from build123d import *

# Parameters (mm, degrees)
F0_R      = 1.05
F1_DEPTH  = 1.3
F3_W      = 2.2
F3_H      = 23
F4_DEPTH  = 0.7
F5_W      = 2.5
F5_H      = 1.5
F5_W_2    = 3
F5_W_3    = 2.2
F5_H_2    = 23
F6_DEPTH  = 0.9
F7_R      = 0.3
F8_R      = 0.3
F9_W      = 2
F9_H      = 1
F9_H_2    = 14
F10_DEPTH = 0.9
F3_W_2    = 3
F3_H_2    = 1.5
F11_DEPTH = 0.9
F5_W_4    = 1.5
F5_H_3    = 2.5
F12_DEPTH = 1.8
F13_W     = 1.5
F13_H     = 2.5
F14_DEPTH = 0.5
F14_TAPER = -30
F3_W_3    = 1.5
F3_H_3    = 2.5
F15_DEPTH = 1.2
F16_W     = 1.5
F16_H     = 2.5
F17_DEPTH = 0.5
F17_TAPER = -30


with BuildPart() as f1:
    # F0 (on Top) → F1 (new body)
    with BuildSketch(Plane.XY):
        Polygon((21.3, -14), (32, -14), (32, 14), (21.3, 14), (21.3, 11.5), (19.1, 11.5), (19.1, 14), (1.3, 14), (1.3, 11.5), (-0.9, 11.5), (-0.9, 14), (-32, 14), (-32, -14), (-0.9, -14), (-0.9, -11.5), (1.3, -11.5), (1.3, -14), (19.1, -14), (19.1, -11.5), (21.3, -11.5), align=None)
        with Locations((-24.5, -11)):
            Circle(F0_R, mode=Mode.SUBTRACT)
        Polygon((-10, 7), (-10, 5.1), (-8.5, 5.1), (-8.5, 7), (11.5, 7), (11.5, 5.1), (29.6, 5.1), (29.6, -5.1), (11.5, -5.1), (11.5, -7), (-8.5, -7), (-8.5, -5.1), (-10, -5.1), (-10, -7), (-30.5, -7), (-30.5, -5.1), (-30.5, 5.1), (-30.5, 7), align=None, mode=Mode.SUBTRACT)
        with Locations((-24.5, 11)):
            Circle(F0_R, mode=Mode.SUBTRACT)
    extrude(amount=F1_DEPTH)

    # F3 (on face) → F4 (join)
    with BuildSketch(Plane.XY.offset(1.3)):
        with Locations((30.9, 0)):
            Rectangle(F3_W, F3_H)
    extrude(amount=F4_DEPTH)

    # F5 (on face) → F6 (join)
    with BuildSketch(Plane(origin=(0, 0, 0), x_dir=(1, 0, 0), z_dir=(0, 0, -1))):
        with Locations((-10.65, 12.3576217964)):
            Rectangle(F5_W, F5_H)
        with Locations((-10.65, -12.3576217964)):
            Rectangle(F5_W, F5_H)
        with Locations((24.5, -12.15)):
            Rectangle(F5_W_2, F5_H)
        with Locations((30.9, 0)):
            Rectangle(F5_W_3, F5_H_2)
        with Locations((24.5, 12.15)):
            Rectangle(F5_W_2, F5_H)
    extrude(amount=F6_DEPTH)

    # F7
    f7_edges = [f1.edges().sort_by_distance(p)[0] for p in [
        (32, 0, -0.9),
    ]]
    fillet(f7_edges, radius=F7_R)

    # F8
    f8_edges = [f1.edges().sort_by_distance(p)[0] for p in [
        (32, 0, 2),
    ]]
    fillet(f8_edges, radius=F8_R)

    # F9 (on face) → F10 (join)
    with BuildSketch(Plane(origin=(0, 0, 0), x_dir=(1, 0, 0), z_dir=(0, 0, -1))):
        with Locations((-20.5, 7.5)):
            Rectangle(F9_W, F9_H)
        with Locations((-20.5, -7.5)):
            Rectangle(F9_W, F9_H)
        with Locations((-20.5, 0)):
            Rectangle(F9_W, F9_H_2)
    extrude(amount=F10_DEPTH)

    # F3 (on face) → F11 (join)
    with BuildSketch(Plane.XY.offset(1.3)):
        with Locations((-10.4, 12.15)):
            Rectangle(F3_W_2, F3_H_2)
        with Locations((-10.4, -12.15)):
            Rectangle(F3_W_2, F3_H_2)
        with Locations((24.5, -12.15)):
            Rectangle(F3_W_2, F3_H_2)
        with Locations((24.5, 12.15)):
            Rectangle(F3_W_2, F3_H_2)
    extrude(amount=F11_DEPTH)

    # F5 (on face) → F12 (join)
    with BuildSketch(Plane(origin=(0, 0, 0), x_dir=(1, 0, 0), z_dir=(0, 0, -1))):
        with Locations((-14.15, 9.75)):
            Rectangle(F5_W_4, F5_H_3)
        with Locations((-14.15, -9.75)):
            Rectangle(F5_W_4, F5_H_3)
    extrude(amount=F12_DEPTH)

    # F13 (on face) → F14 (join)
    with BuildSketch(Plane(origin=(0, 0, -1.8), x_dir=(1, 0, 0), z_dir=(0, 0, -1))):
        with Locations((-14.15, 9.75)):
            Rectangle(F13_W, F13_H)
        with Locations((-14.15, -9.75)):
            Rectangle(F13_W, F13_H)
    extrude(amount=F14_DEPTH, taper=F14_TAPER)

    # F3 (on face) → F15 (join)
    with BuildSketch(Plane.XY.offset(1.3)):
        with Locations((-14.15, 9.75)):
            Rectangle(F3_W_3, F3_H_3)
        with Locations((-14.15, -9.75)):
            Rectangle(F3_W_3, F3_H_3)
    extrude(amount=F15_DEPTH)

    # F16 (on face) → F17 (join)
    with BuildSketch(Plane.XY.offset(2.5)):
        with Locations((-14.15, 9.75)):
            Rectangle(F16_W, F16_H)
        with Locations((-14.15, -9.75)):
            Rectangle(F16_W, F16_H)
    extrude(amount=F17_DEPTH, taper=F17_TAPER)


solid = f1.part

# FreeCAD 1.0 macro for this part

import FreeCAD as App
import Part
import Sketcher
from FreeCAD import Vector
Q = App.Units.Quantity


def edges_at(feature, points):
    """Names of the edges that pass closest to the given points."""
    edges = feature.Shape.Edges
    near = lambda p: min(range(len(edges)), key=lambda i: edges[i].distToShape(Part.Vertex(*p))[0])
    return sorted({f"Edge{near(p) + 1}" for p in points})

doc = App.newDocument("Part")
params = doc.addObject("Spreadsheet::Sheet", "Params")
for row, (alias, value) in enumerate([
    ("sketch1_diameter", "2.1 mm"),
    ("sketch1_width", "20 mm"),
    ("sketch1_height", "28 mm"),
    ("sketch1_height2", "14 mm"),
    ("sketch1_width2", "10.7 mm"),
    ("pad1_length", "1.3 mm"),
    ("sketch2_height", "23 mm"),
    ("sketch2_width", "2.2 mm"),
    ("pad2_length", "0.7 mm"),
    ("sketch3_width", "3 mm"),
    ("sketch3_height", "23 mm"),
    ("sketch3_width2", "2.5 mm"),
    ("sketch3_width3", "2.2 mm"),
    ("sketch3_height2", "1.5 mm"),
    ("pad3_length", "0.9 mm"),
    ("fillet_radius", "0.3 mm"),
    ("fillet2_radius", "0.3 mm"),
    ("sketch4_width", "2 mm"),
    ("sketch4_height", "16 mm"),
    ("pad4_length", "0.9 mm"),
    ("sketch5_width", "3 mm"),
    ("sketch5_height", "1.5 mm"),
    ("pad5_length", "0.9 mm"),
    ("sketch6_width", "1.5 mm"),
    ("sketch6_height", "2.5 mm"),
    ("pad6_length", "1.8 mm"),
    ("sketch7_width", "1.5 mm"),
    ("sketch7_height", "2.5 mm"),
    ("pad7_length", "0.5 mm"),
    ("pad7_taper", "30 deg"),
    ("sketch8_width", "1.5 mm"),
    ("sketch8_height", "2.5 mm"),
    ("pad8_length", "1.2 mm"),
    ("sketch9_width", "1.5 mm"),
    ("sketch9_height", "2.5 mm"),
    ("pad9_length", "0.5 mm"),
    ("pad9_taper", "30 deg"),
], start=1):
    params.set(f"A{row}", alias)
    params.set(f"B{row}", "=" + value)
    params.setAlias(f"B{row}", alias)

body = doc.addObject("PartDesign::Body", "Body")

sketch1 = body.newObject("Sketcher::SketchObject", "Sketch")
sketch1.AttachmentSupport = (doc.getObject("XY_Plane"), [""])
sketch1.MapMode = "FlatFace"
sketch1.addGeometry([
    Part.LineSegment(Vector(21.3, -14, 0), Vector(32, -14, 0)),
    Part.LineSegment(Vector(32, -14, 0), Vector(32, 14, 0)),
    Part.LineSegment(Vector(32, 14, 0), Vector(21.3, 14, 0)),
    Part.LineSegment(Vector(21.3, 14, 0), Vector(21.3, 11.5, 0)),
    Part.LineSegment(Vector(21.3, 11.5, 0), Vector(19.1, 11.5, 0)),
    Part.LineSegment(Vector(19.1, 11.5, 0), Vector(19.1, 14, 0)),
    Part.LineSegment(Vector(19.1, 14, 0), Vector(1.3, 14, 0)),
    Part.LineSegment(Vector(1.3, 14, 0), Vector(1.3, 11.5, 0)),
    Part.LineSegment(Vector(1.3, 11.5, 0), Vector(-0.9, 11.5, 0)),
    Part.LineSegment(Vector(-0.9, 11.5, 0), Vector(-0.9, 14, 0)),
    Part.LineSegment(Vector(-0.9, 14, 0), Vector(-32, 14, 0)),
    Part.LineSegment(Vector(-32, 14, 0), Vector(-32, -14, 0)),
    Part.LineSegment(Vector(-32, -14, 0), Vector(-0.9, -14, 0)),
    Part.LineSegment(Vector(-0.9, -14, 0), Vector(-0.9, -11.5, 0)),
    Part.LineSegment(Vector(-0.9, -11.5, 0), Vector(1.3, -11.5, 0)),
    Part.LineSegment(Vector(1.3, -11.5, 0), Vector(1.3, -14, 0)),
    Part.LineSegment(Vector(1.3, -14, 0), Vector(19.1, -14, 0)),
    Part.LineSegment(Vector(19.1, -14, 0), Vector(19.1, -11.5, 0)),
    Part.LineSegment(Vector(19.1, -11.5, 0), Vector(21.3, -11.5, 0)),
    Part.LineSegment(Vector(21.3, -11.5, 0), Vector(21.3, -14, 0)),
    Part.Circle(Vector(-24.5, -11, 0), Vector(0, 0, 1), 1.1),
    Part.Circle(Vector(-24.5, 11, 0), Vector(0, 0, 1), 1.1),
    Part.LineSegment(Vector(-30.5, 7, 0), Vector(-10, 7, 0)),
    Part.LineSegment(Vector(-10, 7, 0), Vector(-10, 5.1, 0)),
    Part.LineSegment(Vector(-10, 5.1, 0), Vector(-8.5, 5.1, 0)),
    Part.LineSegment(Vector(-8.5, 5.1, 0), Vector(-8.5, 7, 0)),
    Part.LineSegment(Vector(-8.5, 7, 0), Vector(11.5, 7, 0)),
    Part.LineSegment(Vector(11.5, 7, 0), Vector(11.5, 5.1, 0)),
    Part.LineSegment(Vector(11.5, 5.1, 0), Vector(29.6, 5.1, 0)),
    Part.LineSegment(Vector(29.6, 5.1, 0), Vector(29.6, -5.1, 0)),
    Part.LineSegment(Vector(29.6, -5.1, 0), Vector(11.5, -5.1, 0)),
    Part.LineSegment(Vector(11.5, -5.1, 0), Vector(11.5, -7, 0)),
    Part.LineSegment(Vector(11.5, -7, 0), Vector(-8.5, -7, 0)),
    Part.LineSegment(Vector(-8.5, -7, 0), Vector(-8.5, -5.1, 0)),
    Part.LineSegment(Vector(-8.5, -5.1, 0), Vector(-10, -5.1, 0)),
    Part.LineSegment(Vector(-10, -5.1, 0), Vector(-10, -7, 0)),
    Part.LineSegment(Vector(-10, -7, 0), Vector(-30.5, -7, 0)),
    Part.LineSegment(Vector(-30.5, -7, 0), Vector(-30.5, 7, 0)),
], False)
sketch1.addConstraint([
    Sketcher.Constraint("Coincident", 0, 2, 1, 1),
    Sketcher.Constraint("Coincident", 1, 2, 2, 1),
    Sketcher.Constraint("Coincident", 2, 2, 3, 1),
    Sketcher.Constraint("Coincident", 3, 2, 4, 1),
    Sketcher.Constraint("Coincident", 4, 2, 5, 1),
    Sketcher.Constraint("Coincident", 5, 2, 6, 1),
    Sketcher.Constraint("Coincident", 6, 2, 7, 1),
    Sketcher.Constraint("Coincident", 7, 2, 8, 1),
    Sketcher.Constraint("Coincident", 8, 2, 9, 1),
    Sketcher.Constraint("Coincident", 9, 2, 10, 1),
    Sketcher.Constraint("Coincident", 10, 2, 11, 1),
    Sketcher.Constraint("Coincident", 11, 2, 12, 1),
    Sketcher.Constraint("Coincident", 12, 2, 13, 1),
    Sketcher.Constraint("Coincident", 13, 2, 14, 1),
    Sketcher.Constraint("Coincident", 14, 2, 15, 1),
    Sketcher.Constraint("Coincident", 15, 2, 16, 1),
    Sketcher.Constraint("Coincident", 16, 2, 17, 1),
    Sketcher.Constraint("Coincident", 17, 2, 18, 1),
    Sketcher.Constraint("Coincident", 18, 2, 19, 1),
    Sketcher.Constraint("Coincident", 19, 2, 0, 1),
    Sketcher.Constraint("Coincident", 22, 2, 23, 1),
    Sketcher.Constraint("Coincident", 23, 2, 24, 1),
    Sketcher.Constraint("Coincident", 24, 2, 25, 1),
    Sketcher.Constraint("Coincident", 25, 2, 26, 1),
    Sketcher.Constraint("Coincident", 26, 2, 27, 1),
    Sketcher.Constraint("Coincident", 27, 2, 28, 1),
    Sketcher.Constraint("Coincident", 28, 2, 29, 1),
    Sketcher.Constraint("Coincident", 29, 2, 30, 1),
    Sketcher.Constraint("Coincident", 30, 2, 31, 1),
    Sketcher.Constraint("Coincident", 31, 2, 32, 1),
    Sketcher.Constraint("Coincident", 32, 2, 33, 1),
    Sketcher.Constraint("Coincident", 33, 2, 34, 1),
    Sketcher.Constraint("Coincident", 34, 2, 35, 1),
    Sketcher.Constraint("Coincident", 35, 2, 36, 1),
    Sketcher.Constraint("Coincident", 36, 2, 37, 1),
    Sketcher.Constraint("Coincident", 37, 2, 22, 1),
    Sketcher.Constraint("Horizontal", 0),
    Sketcher.Constraint("Vertical", 1),
    Sketcher.Constraint("Horizontal", 2),
    Sketcher.Constraint("Vertical", 3),
    Sketcher.Constraint("Horizontal", 4),
    Sketcher.Constraint("Vertical", 5),
    Sketcher.Constraint("Horizontal", 6),
    Sketcher.Constraint("Vertical", 7),
    Sketcher.Constraint("Horizontal", 8),
    Sketcher.Constraint("Vertical", 9),
    Sketcher.Constraint("Horizontal", 10),
    Sketcher.Constraint("Vertical", 11),
    Sketcher.Constraint("Horizontal", 12),
    Sketcher.Constraint("Vertical", 13),
    Sketcher.Constraint("Horizontal", 14),
    Sketcher.Constraint("Vertical", 15),
    Sketcher.Constraint("Horizontal", 16),
    Sketcher.Constraint("Vertical", 17),
    Sketcher.Constraint("Horizontal", 18),
    Sketcher.Constraint("Vertical", 19),
    Sketcher.Constraint("Horizontal", 22),
    Sketcher.Constraint("Vertical", 23),
    Sketcher.Constraint("Horizontal", 24),
    Sketcher.Constraint("Vertical", 25),
    Sketcher.Constraint("Horizontal", 26),
    Sketcher.Constraint("Vertical", 27),
    Sketcher.Constraint("Horizontal", 28),
    Sketcher.Constraint("Vertical", 29),
    Sketcher.Constraint("Horizontal", 30),
    Sketcher.Constraint("Vertical", 31),
    Sketcher.Constraint("Horizontal", 32),
    Sketcher.Constraint("Vertical", 33),
    Sketcher.Constraint("Horizontal", 34),
    Sketcher.Constraint("Vertical", 35),
    Sketcher.Constraint("Horizontal", 36),
    Sketcher.Constraint("Vertical", 37),
    Sketcher.Constraint("Equal", 20, 21),
    Sketcher.Constraint("Symmetric", 0, 2, 10, 2, -1, 1),
    Sketcher.Constraint("Symmetric", 20, 3, 21, 3, -1),
    Sketcher.Constraint("Symmetric", 9, 2, 12, 2, -1),
    Sketcher.Constraint("Symmetric", 7, 2, 14, 2, -1),
    Sketcher.Constraint("Symmetric", 5, 2, 16, 2, -1),
    Sketcher.Constraint("Symmetric", 3, 2, 18, 2, -1),
    Sketcher.Constraint("Symmetric", 27, 2, 30, 2, -1),
    Sketcher.Constraint("Symmetric", 25, 2, 32, 2, -1),
    Sketcher.Constraint("Symmetric", 23, 2, 34, 2, -1),
    Sketcher.Constraint("Horizontal", 2, 2, 5, 2),
    Sketcher.Constraint("Horizontal", 4, 2, 7, 2),
    Sketcher.Constraint("Horizontal", 6, 2, 9, 2),
    Sketcher.Constraint("Horizontal", 22, 2, 25, 2),
    Sketcher.Constraint("Horizontal", 24, 2, 27, 2),
    Sketcher.Constraint("Horizontal", 32, 2, 35, 2),
    Sketcher.Constraint("Equal", 4, 8),
    Sketcher.Constraint("Diameter", 20, Q("2.1 mm")),
    Sketcher.Constraint("DistanceX", 26, 1, 26, 2, Q("20 mm")),
    Sketcher.Constraint("DistanceY", 1, 1, 1, 2, Q("28 mm")),
    Sketcher.Constraint("DistanceY", 37, 1, 37, 2, Q("14 mm")),
    Sketcher.Constraint("DistanceX", 0, 1, 0, 2, Q("10.7 mm")),
    Sketcher.Constraint("DistanceX", 4, 2, 4, 1, Q("2.2 mm")),
    Sketcher.Constraint("DistanceX", 6, 2, 6, 1, Q("17.8 mm")),
    Sketcher.Constraint("DistanceX", 10, 2, 10, 1, Q("31.1 mm")),
    Sketcher.Constraint("DistanceX", 22, 1, 22, 2, Q("20.5 mm")),
    Sketcher.Constraint("DistanceX", 24, 1, 24, 2, Q("1.5 mm")),
    Sketcher.Constraint("DistanceX", 28, 1, 28, 2, Q("18.1 mm")),
    Sketcher.Constraint("DistanceY", 3, 2, 3, 1, Q("2.5 mm")),
    Sketcher.Constraint("DistanceY", 23, 2, 23, 1, Q("1.9 mm")),
    Sketcher.Constraint("DistanceY", 20, 3, -1, 1, Q("11 mm")),
    Sketcher.Constraint("DistanceX", 22, 2, -1, 1, Q("10 mm")),
    Sketcher.Constraint("DistanceX", 36, 2, 20, 3, Q("6 mm")),
])
sketch1.setExpression("Constraints[89]", "Params.sketch1_diameter")
sketch1.setExpression("Constraints[90]", "Params.sketch1_width")
sketch1.setExpression("Constraints[91]", "Params.sketch1_height")
sketch1.setExpression("Constraints[92]", "Params.sketch1_height2")
sketch1.setExpression("Constraints[93]", "Params.sketch1_width2")
pad1 = body.newObject("PartDesign::Pad", "Pad")
pad1.Profile = sketch1
pad1.setExpression("Length", "Params.pad1_length")

sketch2 = body.newObject("Sketcher::SketchObject", "Sketch001")
sketch2.AttachmentSupport = (doc.getObject("XY_Plane"), [""])
sketch2.MapMode = "FlatFace"
sketch2.AttachmentOffset = App.Placement(Vector(0, 0, 1.3), App.Rotation())
sketch2.addGeometry([
    Part.LineSegment(Vector(29.8, 11.5, 0), Vector(29.8, -11.5, 0)),
    Part.LineSegment(Vector(29.8, -11.5, 0), Vector(32, -11.5, 0)),
    Part.LineSegment(Vector(32, -11.5, 0), Vector(32, 11.5, 0)),
    Part.LineSegment(Vector(32, 11.5, 0), Vector(29.8, 11.5, 0)),
], False)
sketch2.addConstraint([
    Sketcher.Constraint("Coincident", 0, 2, 1, 1),
    Sketcher.Constraint("Coincident", 1, 2, 2, 1),
    Sketcher.Constraint("Coincident", 2, 2, 3, 1),
    Sketcher.Constraint("Coincident", 3, 2, 0, 1),
    Sketcher.Constraint("Vertical", 0),
    Sketcher.Constraint("Horizontal", 1),
    Sketcher.Constraint("Vertical", 2),
    Sketcher.Constraint("Horizontal", 3),
    Sketcher.Constraint("DistanceY", 0, 2, 0, 1, Q("23 mm")),
    Sketcher.Constraint("DistanceX", 1, 1, 1, 2, Q("2.2 mm")),
    Sketcher.Constraint("DistanceX", -1, 1, 1, 2, Q("32 mm")),
    Sketcher.Constraint("DistanceY", 0, 2, -1, 1, Q("11.5 mm")),
])
sketch2.setExpression("Constraints[8]", "Params.sketch2_height")
sketch2.setExpression("Constraints[9]", "Params.sketch2_width")
pad2 = body.newObject("PartDesign::Pad", "Pad001")
pad2.Profile = sketch2
pad2.setExpression("Length", "Params.pad2_length")

sketch3 = body.newObject("Sketcher::SketchObject", "Sketch002")
sketch3.AttachmentSupport = (doc.getObject("XY_Plane"), [""])
sketch3.MapMode = "FlatFace"
sketch3.addGeometry([
    Part.LineSegment(Vector(-11.9, -13.1, 0), Vector(-11.9, -11.6, 0)),
    Part.LineSegment(Vector(-11.9, -11.6, 0), Vector(-9.4, -11.6, 0)),
    Part.LineSegment(Vector(-9.4, -11.6, 0), Vector(-9.4, -13.1, 0)),
    Part.LineSegment(Vector(-9.4, -13.1, 0), Vector(-11.9, -13.1, 0)),
    Part.LineSegment(Vector(-11.9, 11.6, 0), Vector(-11.9, 13.1, 0)),
    Part.LineSegment(Vector(-11.9, 13.1, 0), Vector(-9.4, 13.1, 0)),
    Part.LineSegment(Vector(-9.4, 13.1, 0), Vector(-9.4, 11.6, 0)),
    Part.LineSegment(Vector(-9.4, 11.6, 0), Vector(-11.9, 11.6, 0)),
    Part.LineSegment(Vector(23, 11.4, 0), Vector(23, 12.9, 0)),
    Part.LineSegment(Vector(23, 12.9, 0), Vector(26, 12.9, 0)),
    Part.LineSegment(Vector(26, 12.9, 0), Vector(26, 11.4, 0)),
    Part.LineSegment(Vector(26, 11.4, 0), Vector(23, 11.4, 0)),
    Part.LineSegment(Vector(29.8, -11.5, 0), Vector(29.8, 11.5, 0)),
    Part.LineSegment(Vector(29.8, 11.5, 0), Vector(32, 11.5, 0)),
    Part.LineSegment(Vector(32, 11.5, 0), Vector(32, -11.5, 0)),
    Part.LineSegment(Vector(32, -11.5, 0), Vector(29.8, -11.5, 0)),
    Part.LineSegment(Vector(23, -12.9, 0), Vector(23, -11.4, 0)),
    Part.LineSegment(Vector(23, -11.4, 0), Vector(26, -11.4, 0)),
    Part.LineSegment(Vector(26, -11.4, 0), Vector(26, -12.9, 0)),
    Part.LineSegment(Vector(26, -12.9, 0), Vector(23, -12.9, 0)),
], False)
sketch3.addConstraint([
    Sketcher.Constraint("Coincident", 0, 2, 1, 1),
    Sketcher.Constraint("Coincident", 1, 2, 2, 1),
    Sketcher.Constraint("Coincident", 2, 2, 3, 1),
    Sketcher.Constraint("Coincident", 3, 2, 0, 1),
    Sketcher.Constraint("Coincident", 4, 2, 5, 1),
    Sketcher.Constraint("Coincident", 5, 2, 6, 1),
    Sketcher.Constraint("Coincident", 6, 2, 7, 1),
    Sketcher.Constraint("Coincident", 7, 2, 4, 1),
    Sketcher.Constraint("Coincident", 8, 2, 9, 1),
    Sketcher.Constraint("Coincident", 9, 2, 10, 1),
    Sketcher.Constraint("Coincident", 10, 2, 11, 1),
    Sketcher.Constraint("Coincident", 11, 2, 8, 1),
    Sketcher.Constraint("Coincident", 12, 2, 13, 1),
    Sketcher.Constraint("Coincident", 13, 2, 14, 1),
    Sketcher.Constraint("Coincident", 14, 2, 15, 1),
    Sketcher.Constraint("Coincident", 15, 2, 12, 1),
    Sketcher.Constraint("Coincident", 16, 2, 17, 1),
    Sketcher.Constraint("Coincident", 17, 2, 18, 1),
    Sketcher.Constraint("Coincident", 18, 2, 19, 1),
    Sketcher.Constraint("Coincident", 19, 2, 16, 1),
    Sketcher.Constraint("Vertical", 0),
    Sketcher.Constraint("Horizontal", 1),
    Sketcher.Constraint("Vertical", 2),
    Sketcher.Constraint("Horizontal", 3),
    Sketcher.Constraint("Vertical", 4),
    Sketcher.Constraint("Horizontal", 5),
    Sketcher.Constraint("Vertical", 6),
    Sketcher.Constraint("Horizontal", 7),
    Sketcher.Constraint("Vertical", 8),
    Sketcher.Constraint("Horizontal", 9),
    Sketcher.Constraint("Vertical", 10),
    Sketcher.Constraint("Horizontal", 11),
    Sketcher.Constraint("Vertical", 12),
    Sketcher.Constraint("Horizontal", 13),
    Sketcher.Constraint("Vertical", 14),
    Sketcher.Constraint("Horizontal", 15),
    Sketcher.Constraint("Vertical", 16),
    Sketcher.Constraint("Horizontal", 17),
    Sketcher.Constraint("Vertical", 18),
    Sketcher.Constraint("Horizontal", 19),
    Sketcher.Constraint("Symmetric", 3, 2, 4, 2, -1),
    Sketcher.Constraint("Symmetric", 1, 2, 6, 2, -1),
    Sketcher.Constraint("Symmetric", 11, 2, 16, 2, -1),
    Sketcher.Constraint("Symmetric", 9, 2, 18, 2, -1),
    Sketcher.Constraint("Equal", 6, 8),
    Sketcher.Constraint("DistanceX", 9, 1, 9, 2, Q("3 mm")),
    Sketcher.Constraint("DistanceY", 12, 1, 12, 2, Q("23 mm")),
    Sketcher.Constraint("DistanceX", 1, 1, 1, 2, Q("2.5 mm")),
    Sketcher.Constraint("DistanceX", 13, 1, 13, 2, Q("2.2 mm")),
    Sketcher.Constraint("DistanceY", 0, 1, 0, 2, Q("1.5 mm")),
    Sketcher.Constraint("DistanceX", -1, 1, 8, 2, Q("23 mm")),
    Sketcher.Constraint("DistanceX", -1, 1, 13, 2, Q("32 mm")),
    Sketcher.Constraint("DistanceX", 0, 2, -1, 1, Q("11.9 mm")),
    Sketcher.Constraint("DistanceY", -1, 1, 8, 2, Q("12.9 mm")),
    Sketcher.Constraint("DistanceY", -1, 1, 12, 2, Q("11.5 mm")),
    Sketcher.Constraint("DistanceY", 0, 2, -1, 1, Q("11.607622 mm")),
])
sketch3.setExpression("Constraints[45]", "Params.sketch3_width")
sketch3.setExpression("Constraints[46]", "Params.sketch3_height")
sketch3.setExpression("Constraints[47]", "Params.sketch3_width2")
sketch3.setExpression("Constraints[48]", "Params.sketch3_width3")
sketch3.setExpression("Constraints[49]", "Params.sketch3_height2")
pad3 = body.newObject("PartDesign::Pad", "Pad002")
pad3.Profile = sketch3
pad3.setExpression("Length", "Params.pad3_length")
pad3.Reversed = True
doc.recompute()

fillet = body.newObject("PartDesign::Fillet", "Fillet")
fillet.Base = (pad3, edges_at(pad3, [(32, 0, -0.9)]))
fillet.setExpression("Radius", "Params.fillet_radius")
doc.recompute()

fillet2 = body.newObject("PartDesign::Fillet", "Fillet001")
fillet2.Base = (fillet, edges_at(fillet, [(32, 0, 2)]))
fillet2.setExpression("Radius", "Params.fillet2_radius")

sketch4 = body.newObject("Sketcher::SketchObject", "Sketch003")
sketch4.AttachmentSupport = (doc.getObject("XY_Plane"), [""])
sketch4.MapMode = "FlatFace"
sketch4.addGeometry([
    Part.LineSegment(Vector(-21.5, -8, 0), Vector(-21.5, 8, 0)),
    Part.LineSegment(Vector(-21.5, 8, 0), Vector(-19.5, 8, 0)),
    Part.LineSegment(Vector(-19.5, 8, 0), Vector(-19.5, -8, 0)),
    Part.LineSegment(Vector(-19.5, -8, 0), Vector(-21.5, -8, 0)),
], False)
sketch4.addConstraint([
    Sketcher.Constraint("Coincident", 0, 2, 1, 1),
    Sketcher.Constraint("Coincident", 1, 2, 2, 1),
    Sketcher.Constraint("Coincident", 2, 2, 3, 1),
    Sketcher.Constraint("Coincident", 3, 2, 0, 1),
    Sketcher.Constraint("Vertical", 0),
    Sketcher.Constraint("Horizontal", 1),
    Sketcher.Constraint("Vertical", 2),
    Sketcher.Constraint("Horizontal", 3),
    Sketcher.Constraint("DistanceX", 1, 1, 1, 2, Q("2 mm")),
    Sketcher.Constraint("DistanceY", 0, 1, 0, 2, Q("16 mm")),
    Sketcher.Constraint("DistanceY", -1, 1, 0, 2, Q("8 mm")),
    Sketcher.Constraint("DistanceX", 0, 2, -1, 1, Q("21.5 mm")),
])
sketch4.setExpression("Constraints[8]", "Params.sketch4_width")
sketch4.setExpression("Constraints[9]", "Params.sketch4_height")
pad4 = body.newObject("PartDesign::Pad", "Pad003")
pad4.Profile = sketch4
pad4.setExpression("Length", "Params.pad4_length")
pad4.Reversed = True

sketch5 = body.newObject("Sketcher::SketchObject", "Sketch004")
sketch5.AttachmentSupport = (doc.getObject("XY_Plane"), [""])
sketch5.MapMode = "FlatFace"
sketch5.AttachmentOffset = App.Placement(Vector(0, 0, 1.3), App.Rotation())
sketch5.addGeometry([
    Part.LineSegment(Vector(-11.9, 12.9, 0), Vector(-11.9, 11.4, 0)),
    Part.LineSegment(Vector(-11.9, 11.4, 0), Vector(-8.9, 11.4, 0)),
    Part.LineSegment(Vector(-8.9, 11.4, 0), Vector(-8.9, 12.9, 0)),
    Part.LineSegment(Vector(-8.9, 12.9, 0), Vector(-11.9, 12.9, 0)),
    Part.LineSegment(Vector(-11.9, -11.4, 0), Vector(-11.9, -12.9, 0)),
    Part.LineSegment(Vector(-11.9, -12.9, 0), Vector(-8.9, -12.9, 0)),
    Part.LineSegment(Vector(-8.9, -12.9, 0), Vector(-8.9, -11.4, 0)),
    Part.LineSegment(Vector(-8.9, -11.4, 0), Vector(-11.9, -11.4, 0)),
    Part.LineSegment(Vector(23, -11.4, 0), Vector(23, -12.9, 0)),
    Part.LineSegment(Vector(23, -12.9, 0), Vector(26, -12.9, 0)),
    Part.LineSegment(Vector(26, -12.9, 0), Vector(26, -11.4, 0)),
    Part.LineSegment(Vector(26, -11.4, 0), Vector(23, -11.4, 0)),
    Part.LineSegment(Vector(23, 12.9, 0), Vector(23, 11.4, 0)),
    Part.LineSegment(Vector(23, 11.4, 0), Vector(26, 11.4, 0)),
    Part.LineSegment(Vector(26, 11.4, 0), Vector(26, 12.9, 0)),
    Part.LineSegment(Vector(26, 12.9, 0), Vector(23, 12.9, 0)),
], False)
sketch5.addConstraint([
    Sketcher.Constraint("Coincident", 0, 2, 1, 1),
    Sketcher.Constraint("Coincident", 1, 2, 2, 1),
    Sketcher.Constraint("Coincident", 2, 2, 3, 1),
    Sketcher.Constraint("Coincident", 3, 2, 0, 1),
    Sketcher.Constraint("Coincident", 4, 2, 5, 1),
    Sketcher.Constraint("Coincident", 5, 2, 6, 1),
    Sketcher.Constraint("Coincident", 6, 2, 7, 1),
    Sketcher.Constraint("Coincident", 7, 2, 4, 1),
    Sketcher.Constraint("Coincident", 8, 2, 9, 1),
    Sketcher.Constraint("Coincident", 9, 2, 10, 1),
    Sketcher.Constraint("Coincident", 10, 2, 11, 1),
    Sketcher.Constraint("Coincident", 11, 2, 8, 1),
    Sketcher.Constraint("Coincident", 12, 2, 13, 1),
    Sketcher.Constraint("Coincident", 13, 2, 14, 1),
    Sketcher.Constraint("Coincident", 14, 2, 15, 1),
    Sketcher.Constraint("Coincident", 15, 2, 12, 1),
    Sketcher.Constraint("Vertical", 0),
    Sketcher.Constraint("Horizontal", 1),
    Sketcher.Constraint("Vertical", 2),
    Sketcher.Constraint("Horizontal", 3),
    Sketcher.Constraint("Vertical", 4),
    Sketcher.Constraint("Horizontal", 5),
    Sketcher.Constraint("Vertical", 6),
    Sketcher.Constraint("Horizontal", 7),
    Sketcher.Constraint("Vertical", 8),
    Sketcher.Constraint("Horizontal", 9),
    Sketcher.Constraint("Vertical", 10),
    Sketcher.Constraint("Horizontal", 11),
    Sketcher.Constraint("Vertical", 12),
    Sketcher.Constraint("Horizontal", 13),
    Sketcher.Constraint("Vertical", 14),
    Sketcher.Constraint("Horizontal", 15),
    Sketcher.Constraint("Symmetric", 3, 2, 4, 2, -1),
    Sketcher.Constraint("Symmetric", 1, 2, 6, 2, -1),
    Sketcher.Constraint("Symmetric", 11, 2, 12, 2, -1),
    Sketcher.Constraint("Symmetric", 9, 2, 14, 2, -1),
    Sketcher.Constraint("Horizontal", 5, 2, 8, 2),
    Sketcher.Constraint("Horizontal", 7, 2, 10, 2),
    Sketcher.Constraint("Equal", 7, 9),
    Sketcher.Constraint("DistanceX", 1, 1, 1, 2, Q("3 mm")),
    Sketcher.Constraint("DistanceY", 0, 2, 0, 1, Q("1.5 mm")),
    Sketcher.Constraint("DistanceX", -1, 1, 8, 2, Q("23 mm")),
    Sketcher.Constraint("DistanceX", 0, 2, -1, 1, Q("11.9 mm")),
    Sketcher.Constraint("DistanceY", -1, 1, 0, 2, Q("11.4 mm")),
])
sketch5.setExpression("Constraints[39]", "Params.sketch5_width")
sketch5.setExpression("Constraints[40]", "Params.sketch5_height")
pad5 = body.newObject("PartDesign::Pad", "Pad004")
pad5.Profile = sketch5
pad5.setExpression("Length", "Params.pad5_length")

sketch6 = body.newObject("Sketcher::SketchObject", "Sketch005")
sketch6.AttachmentSupport = (doc.getObject("XY_Plane"), [""])
sketch6.MapMode = "FlatFace"
sketch6.addGeometry([
    Part.LineSegment(Vector(-14.9, -11, 0), Vector(-14.9, -8.5, 0)),
    Part.LineSegment(Vector(-14.9, -8.5, 0), Vector(-13.4, -8.5, 0)),
    Part.LineSegment(Vector(-13.4, -8.5, 0), Vector(-13.4, -11, 0)),
    Part.LineSegment(Vector(-13.4, -11, 0), Vector(-14.9, -11, 0)),
    Part.LineSegment(Vector(-14.9, 8.5, 0), Vector(-14.9, 11, 0)),
    Part.LineSegment(Vector(-14.9, 11, 0), Vector(-13.4, 11, 0)),
    Part.LineSegment(Vector(-13.4, 11, 0), Vector(-13.4, 8.5, 0)),
    Part.LineSegment(Vector(-13.4, 8.5, 0), Vector(-14.9, 8.5, 0)),
], False)
sketch6.addConstraint([
    Sketcher.Constraint("Coincident", 0, 2, 1, 1),
    Sketcher.Constraint("Coincident", 1, 2, 2, 1),
    Sketcher.Constraint("Coincident", 2, 2, 3, 1),
    Sketcher.Constraint("Coincident", 3, 2, 0, 1),
    Sketcher.Constraint("Coincident", 4, 2, 5, 1),
    Sketcher.Constraint("Coincident", 5, 2, 6, 1),
    Sketcher.Constraint("Coincident", 6, 2, 7, 1),
    Sketcher.Constraint("Coincident", 7, 2, 4, 1),
    Sketcher.Constraint("Vertical", 0),
    Sketcher.Constraint("Horizontal", 1),
    Sketcher.Constraint("Vertical", 2),
    Sketcher.Constraint("Horizontal", 3),
    Sketcher.Constraint("Vertical", 4),
    Sketcher.Constraint("Horizontal", 5),
    Sketcher.Constraint("Vertical", 6),
    Sketcher.Constraint("Horizontal", 7),
    Sketcher.Constraint("Symmetric", 3, 2, 4, 2, -1),
    Sketcher.Constraint("Symmetric", 1, 2, 6, 2, -1),
    Sketcher.Constraint("DistanceX", 1, 1, 1, 2, Q("1.5 mm")),
    Sketcher.Constraint("DistanceY", 0, 1, 0, 2, Q("2.5 mm")),
    Sketcher.Constraint("DistanceY", 2, 2, -1, 1, Q("11 mm")),
    Sketcher.Constraint("DistanceX", 0, 2, -1, 1, Q("14.9 mm")),
])
sketch6.setExpression("Constraints[18]", "Params.sketch6_width")
sketch6.setExpression("Constraints[19]", "Params.sketch6_height")
pad6 = body.newObject("PartDesign::Pad", "Pad005")
pad6.Profile = sketch6
pad6.setExpression("Length", "Params.pad6_length")
pad6.Reversed = True

sketch7 = body.newObject("Sketcher::SketchObject", "Sketch006")
sketch7.AttachmentSupport = (doc.getObject("XY_Plane"), [""])
sketch7.MapMode = "FlatFace"
sketch7.AttachmentOffset = App.Placement(Vector(0, 0, -1.8), App.Rotation())
sketch7.addGeometry([
    Part.LineSegment(Vector(-14.9, -11, 0), Vector(-14.9, -8.5, 0)),
    Part.LineSegment(Vector(-14.9, -8.5, 0), Vector(-13.4, -8.5, 0)),
    Part.LineSegment(Vector(-13.4, -8.5, 0), Vector(-13.4, -11, 0)),
    Part.LineSegment(Vector(-13.4, -11, 0), Vector(-14.9, -11, 0)),
    Part.LineSegment(Vector(-14.9, 8.5, 0), Vector(-14.9, 11, 0)),
    Part.LineSegment(Vector(-14.9, 11, 0), Vector(-13.4, 11, 0)),
    Part.LineSegment(Vector(-13.4, 11, 0), Vector(-13.4, 8.5, 0)),
    Part.LineSegment(Vector(-13.4, 8.5, 0), Vector(-14.9, 8.5, 0)),
], False)
sketch7.addConstraint([
    Sketcher.Constraint("Coincident", 0, 2, 1, 1),
    Sketcher.Constraint("Coincident", 1, 2, 2, 1),
    Sketcher.Constraint("Coincident", 2, 2, 3, 1),
    Sketcher.Constraint("Coincident", 3, 2, 0, 1),
    Sketcher.Constraint("Coincident", 4, 2, 5, 1),
    Sketcher.Constraint("Coincident", 5, 2, 6, 1),
    Sketcher.Constraint("Coincident", 6, 2, 7, 1),
    Sketcher.Constraint("Coincident", 7, 2, 4, 1),
    Sketcher.Constraint("Vertical", 0),
    Sketcher.Constraint("Horizontal", 1),
    Sketcher.Constraint("Vertical", 2),
    Sketcher.Constraint("Horizontal", 3),
    Sketcher.Constraint("Vertical", 4),
    Sketcher.Constraint("Horizontal", 5),
    Sketcher.Constraint("Vertical", 6),
    Sketcher.Constraint("Horizontal", 7),
    Sketcher.Constraint("Symmetric", 3, 2, 4, 2, -1),
    Sketcher.Constraint("Symmetric", 1, 2, 6, 2, -1),
    Sketcher.Constraint("DistanceX", 1, 1, 1, 2, Q("1.5 mm")),
    Sketcher.Constraint("DistanceY", 0, 1, 0, 2, Q("2.5 mm")),
    Sketcher.Constraint("DistanceY", 2, 2, -1, 1, Q("11 mm")),
    Sketcher.Constraint("DistanceX", 0, 2, -1, 1, Q("14.9 mm")),
])
sketch7.setExpression("Constraints[18]", "Params.sketch7_width")
sketch7.setExpression("Constraints[19]", "Params.sketch7_height")
pad7 = body.newObject("PartDesign::Pad", "Pad006")
pad7.Profile = sketch7
pad7.setExpression("Length", "Params.pad7_length")
pad7.Reversed = True
pad7.setExpression("TaperAngle", "Params.pad7_taper")

sketch8 = body.newObject("Sketcher::SketchObject", "Sketch007")
sketch8.AttachmentSupport = (doc.getObject("XY_Plane"), [""])
sketch8.MapMode = "FlatFace"
sketch8.AttachmentOffset = App.Placement(Vector(0, 0, 1.3), App.Rotation())
sketch8.addGeometry([
    Part.LineSegment(Vector(-14.9, 11, 0), Vector(-14.9, 8.5, 0)),
    Part.LineSegment(Vector(-14.9, 8.5, 0), Vector(-13.4, 8.5, 0)),
    Part.LineSegment(Vector(-13.4, 8.5, 0), Vector(-13.4, 11, 0)),
    Part.LineSegment(Vector(-13.4, 11, 0), Vector(-14.9, 11, 0)),
    Part.LineSegment(Vector(-14.9, -8.5, 0), Vector(-14.9, -11, 0)),
    Part.LineSegment(Vector(-14.9, -11, 0), Vector(-13.4, -11, 0)),
    Part.LineSegment(Vector(-13.4, -11, 0), Vector(-13.4, -8.5, 0)),
    Part.LineSegment(Vector(-13.4, -8.5, 0), Vector(-14.9, -8.5, 0)),
], False)
sketch8.addConstraint([
    Sketcher.Constraint("Coincident", 0, 2, 1, 1),
    Sketcher.Constraint("Coincident", 1, 2, 2, 1),
    Sketcher.Constraint("Coincident", 2, 2, 3, 1),
    Sketcher.Constraint("Coincident", 3, 2, 0, 1),
    Sketcher.Constraint("Coincident", 4, 2, 5, 1),
    Sketcher.Constraint("Coincident", 5, 2, 6, 1),
    Sketcher.Constraint("Coincident", 6, 2, 7, 1),
    Sketcher.Constraint("Coincident", 7, 2, 4, 1),
    Sketcher.Constraint("Vertical", 0),
    Sketcher.Constraint("Horizontal", 1),
    Sketcher.Constraint("Vertical", 2),
    Sketcher.Constraint("Horizontal", 3),
    Sketcher.Constraint("Vertical", 4),
    Sketcher.Constraint("Horizontal", 5),
    Sketcher.Constraint("Vertical", 6),
    Sketcher.Constraint("Horizontal", 7),
    Sketcher.Constraint("Symmetric", 3, 2, 4, 2, -1),
    Sketcher.Constraint("Symmetric", 1, 2, 6, 2, -1),
    Sketcher.Constraint("DistanceX", 1, 1, 1, 2, Q("1.5 mm")),
    Sketcher.Constraint("DistanceY", 0, 2, 0, 1, Q("2.5 mm")),
    Sketcher.Constraint("DistanceY", -1, 1, 2, 2, Q("11 mm")),
    Sketcher.Constraint("DistanceX", 0, 2, -1, 1, Q("14.9 mm")),
])
sketch8.setExpression("Constraints[18]", "Params.sketch8_width")
sketch8.setExpression("Constraints[19]", "Params.sketch8_height")
pad8 = body.newObject("PartDesign::Pad", "Pad007")
pad8.Profile = sketch8
pad8.setExpression("Length", "Params.pad8_length")

sketch9 = body.newObject("Sketcher::SketchObject", "Sketch008")
sketch9.AttachmentSupport = (doc.getObject("XY_Plane"), [""])
sketch9.MapMode = "FlatFace"
sketch9.AttachmentOffset = App.Placement(Vector(0, 0, 2.5), App.Rotation())
sketch9.addGeometry([
    Part.LineSegment(Vector(-14.9, 11, 0), Vector(-14.9, 8.5, 0)),
    Part.LineSegment(Vector(-14.9, 8.5, 0), Vector(-13.4, 8.5, 0)),
    Part.LineSegment(Vector(-13.4, 8.5, 0), Vector(-13.4, 11, 0)),
    Part.LineSegment(Vector(-13.4, 11, 0), Vector(-14.9, 11, 0)),
    Part.LineSegment(Vector(-14.9, -8.5, 0), Vector(-14.9, -11, 0)),
    Part.LineSegment(Vector(-14.9, -11, 0), Vector(-13.4, -11, 0)),
    Part.LineSegment(Vector(-13.4, -11, 0), Vector(-13.4, -8.5, 0)),
    Part.LineSegment(Vector(-13.4, -8.5, 0), Vector(-14.9, -8.5, 0)),
], False)
sketch9.addConstraint([
    Sketcher.Constraint("Coincident", 0, 2, 1, 1),
    Sketcher.Constraint("Coincident", 1, 2, 2, 1),
    Sketcher.Constraint("Coincident", 2, 2, 3, 1),
    Sketcher.Constraint("Coincident", 3, 2, 0, 1),
    Sketcher.Constraint("Coincident", 4, 2, 5, 1),
    Sketcher.Constraint("Coincident", 5, 2, 6, 1),
    Sketcher.Constraint("Coincident", 6, 2, 7, 1),
    Sketcher.Constraint("Coincident", 7, 2, 4, 1),
    Sketcher.Constraint("Vertical", 0),
    Sketcher.Constraint("Horizontal", 1),
    Sketcher.Constraint("Vertical", 2),
    Sketcher.Constraint("Horizontal", 3),
    Sketcher.Constraint("Vertical", 4),
    Sketcher.Constraint("Horizontal", 5),
    Sketcher.Constraint("Vertical", 6),
    Sketcher.Constraint("Horizontal", 7),
    Sketcher.Constraint("Symmetric", 3, 2, 4, 2, -1),
    Sketcher.Constraint("Symmetric", 1, 2, 6, 2, -1),
    Sketcher.Constraint("DistanceX", 1, 1, 1, 2, Q("1.5 mm")),
    Sketcher.Constraint("DistanceY", 0, 2, 0, 1, Q("2.5 mm")),
    Sketcher.Constraint("DistanceY", -1, 1, 2, 2, Q("11 mm")),
    Sketcher.Constraint("DistanceX", 0, 2, -1, 1, Q("14.9 mm")),
])
sketch9.setExpression("Constraints[18]", "Params.sketch9_width")
sketch9.setExpression("Constraints[19]", "Params.sketch9_height")
pad9 = body.newObject("PartDesign::Pad", "Pad008")
pad9.Profile = sketch9
pad9.setExpression("Length", "Params.pad9_length")
pad9.setExpression("TaperAngle", "Params.pad9_taper")

doc.recompute()
